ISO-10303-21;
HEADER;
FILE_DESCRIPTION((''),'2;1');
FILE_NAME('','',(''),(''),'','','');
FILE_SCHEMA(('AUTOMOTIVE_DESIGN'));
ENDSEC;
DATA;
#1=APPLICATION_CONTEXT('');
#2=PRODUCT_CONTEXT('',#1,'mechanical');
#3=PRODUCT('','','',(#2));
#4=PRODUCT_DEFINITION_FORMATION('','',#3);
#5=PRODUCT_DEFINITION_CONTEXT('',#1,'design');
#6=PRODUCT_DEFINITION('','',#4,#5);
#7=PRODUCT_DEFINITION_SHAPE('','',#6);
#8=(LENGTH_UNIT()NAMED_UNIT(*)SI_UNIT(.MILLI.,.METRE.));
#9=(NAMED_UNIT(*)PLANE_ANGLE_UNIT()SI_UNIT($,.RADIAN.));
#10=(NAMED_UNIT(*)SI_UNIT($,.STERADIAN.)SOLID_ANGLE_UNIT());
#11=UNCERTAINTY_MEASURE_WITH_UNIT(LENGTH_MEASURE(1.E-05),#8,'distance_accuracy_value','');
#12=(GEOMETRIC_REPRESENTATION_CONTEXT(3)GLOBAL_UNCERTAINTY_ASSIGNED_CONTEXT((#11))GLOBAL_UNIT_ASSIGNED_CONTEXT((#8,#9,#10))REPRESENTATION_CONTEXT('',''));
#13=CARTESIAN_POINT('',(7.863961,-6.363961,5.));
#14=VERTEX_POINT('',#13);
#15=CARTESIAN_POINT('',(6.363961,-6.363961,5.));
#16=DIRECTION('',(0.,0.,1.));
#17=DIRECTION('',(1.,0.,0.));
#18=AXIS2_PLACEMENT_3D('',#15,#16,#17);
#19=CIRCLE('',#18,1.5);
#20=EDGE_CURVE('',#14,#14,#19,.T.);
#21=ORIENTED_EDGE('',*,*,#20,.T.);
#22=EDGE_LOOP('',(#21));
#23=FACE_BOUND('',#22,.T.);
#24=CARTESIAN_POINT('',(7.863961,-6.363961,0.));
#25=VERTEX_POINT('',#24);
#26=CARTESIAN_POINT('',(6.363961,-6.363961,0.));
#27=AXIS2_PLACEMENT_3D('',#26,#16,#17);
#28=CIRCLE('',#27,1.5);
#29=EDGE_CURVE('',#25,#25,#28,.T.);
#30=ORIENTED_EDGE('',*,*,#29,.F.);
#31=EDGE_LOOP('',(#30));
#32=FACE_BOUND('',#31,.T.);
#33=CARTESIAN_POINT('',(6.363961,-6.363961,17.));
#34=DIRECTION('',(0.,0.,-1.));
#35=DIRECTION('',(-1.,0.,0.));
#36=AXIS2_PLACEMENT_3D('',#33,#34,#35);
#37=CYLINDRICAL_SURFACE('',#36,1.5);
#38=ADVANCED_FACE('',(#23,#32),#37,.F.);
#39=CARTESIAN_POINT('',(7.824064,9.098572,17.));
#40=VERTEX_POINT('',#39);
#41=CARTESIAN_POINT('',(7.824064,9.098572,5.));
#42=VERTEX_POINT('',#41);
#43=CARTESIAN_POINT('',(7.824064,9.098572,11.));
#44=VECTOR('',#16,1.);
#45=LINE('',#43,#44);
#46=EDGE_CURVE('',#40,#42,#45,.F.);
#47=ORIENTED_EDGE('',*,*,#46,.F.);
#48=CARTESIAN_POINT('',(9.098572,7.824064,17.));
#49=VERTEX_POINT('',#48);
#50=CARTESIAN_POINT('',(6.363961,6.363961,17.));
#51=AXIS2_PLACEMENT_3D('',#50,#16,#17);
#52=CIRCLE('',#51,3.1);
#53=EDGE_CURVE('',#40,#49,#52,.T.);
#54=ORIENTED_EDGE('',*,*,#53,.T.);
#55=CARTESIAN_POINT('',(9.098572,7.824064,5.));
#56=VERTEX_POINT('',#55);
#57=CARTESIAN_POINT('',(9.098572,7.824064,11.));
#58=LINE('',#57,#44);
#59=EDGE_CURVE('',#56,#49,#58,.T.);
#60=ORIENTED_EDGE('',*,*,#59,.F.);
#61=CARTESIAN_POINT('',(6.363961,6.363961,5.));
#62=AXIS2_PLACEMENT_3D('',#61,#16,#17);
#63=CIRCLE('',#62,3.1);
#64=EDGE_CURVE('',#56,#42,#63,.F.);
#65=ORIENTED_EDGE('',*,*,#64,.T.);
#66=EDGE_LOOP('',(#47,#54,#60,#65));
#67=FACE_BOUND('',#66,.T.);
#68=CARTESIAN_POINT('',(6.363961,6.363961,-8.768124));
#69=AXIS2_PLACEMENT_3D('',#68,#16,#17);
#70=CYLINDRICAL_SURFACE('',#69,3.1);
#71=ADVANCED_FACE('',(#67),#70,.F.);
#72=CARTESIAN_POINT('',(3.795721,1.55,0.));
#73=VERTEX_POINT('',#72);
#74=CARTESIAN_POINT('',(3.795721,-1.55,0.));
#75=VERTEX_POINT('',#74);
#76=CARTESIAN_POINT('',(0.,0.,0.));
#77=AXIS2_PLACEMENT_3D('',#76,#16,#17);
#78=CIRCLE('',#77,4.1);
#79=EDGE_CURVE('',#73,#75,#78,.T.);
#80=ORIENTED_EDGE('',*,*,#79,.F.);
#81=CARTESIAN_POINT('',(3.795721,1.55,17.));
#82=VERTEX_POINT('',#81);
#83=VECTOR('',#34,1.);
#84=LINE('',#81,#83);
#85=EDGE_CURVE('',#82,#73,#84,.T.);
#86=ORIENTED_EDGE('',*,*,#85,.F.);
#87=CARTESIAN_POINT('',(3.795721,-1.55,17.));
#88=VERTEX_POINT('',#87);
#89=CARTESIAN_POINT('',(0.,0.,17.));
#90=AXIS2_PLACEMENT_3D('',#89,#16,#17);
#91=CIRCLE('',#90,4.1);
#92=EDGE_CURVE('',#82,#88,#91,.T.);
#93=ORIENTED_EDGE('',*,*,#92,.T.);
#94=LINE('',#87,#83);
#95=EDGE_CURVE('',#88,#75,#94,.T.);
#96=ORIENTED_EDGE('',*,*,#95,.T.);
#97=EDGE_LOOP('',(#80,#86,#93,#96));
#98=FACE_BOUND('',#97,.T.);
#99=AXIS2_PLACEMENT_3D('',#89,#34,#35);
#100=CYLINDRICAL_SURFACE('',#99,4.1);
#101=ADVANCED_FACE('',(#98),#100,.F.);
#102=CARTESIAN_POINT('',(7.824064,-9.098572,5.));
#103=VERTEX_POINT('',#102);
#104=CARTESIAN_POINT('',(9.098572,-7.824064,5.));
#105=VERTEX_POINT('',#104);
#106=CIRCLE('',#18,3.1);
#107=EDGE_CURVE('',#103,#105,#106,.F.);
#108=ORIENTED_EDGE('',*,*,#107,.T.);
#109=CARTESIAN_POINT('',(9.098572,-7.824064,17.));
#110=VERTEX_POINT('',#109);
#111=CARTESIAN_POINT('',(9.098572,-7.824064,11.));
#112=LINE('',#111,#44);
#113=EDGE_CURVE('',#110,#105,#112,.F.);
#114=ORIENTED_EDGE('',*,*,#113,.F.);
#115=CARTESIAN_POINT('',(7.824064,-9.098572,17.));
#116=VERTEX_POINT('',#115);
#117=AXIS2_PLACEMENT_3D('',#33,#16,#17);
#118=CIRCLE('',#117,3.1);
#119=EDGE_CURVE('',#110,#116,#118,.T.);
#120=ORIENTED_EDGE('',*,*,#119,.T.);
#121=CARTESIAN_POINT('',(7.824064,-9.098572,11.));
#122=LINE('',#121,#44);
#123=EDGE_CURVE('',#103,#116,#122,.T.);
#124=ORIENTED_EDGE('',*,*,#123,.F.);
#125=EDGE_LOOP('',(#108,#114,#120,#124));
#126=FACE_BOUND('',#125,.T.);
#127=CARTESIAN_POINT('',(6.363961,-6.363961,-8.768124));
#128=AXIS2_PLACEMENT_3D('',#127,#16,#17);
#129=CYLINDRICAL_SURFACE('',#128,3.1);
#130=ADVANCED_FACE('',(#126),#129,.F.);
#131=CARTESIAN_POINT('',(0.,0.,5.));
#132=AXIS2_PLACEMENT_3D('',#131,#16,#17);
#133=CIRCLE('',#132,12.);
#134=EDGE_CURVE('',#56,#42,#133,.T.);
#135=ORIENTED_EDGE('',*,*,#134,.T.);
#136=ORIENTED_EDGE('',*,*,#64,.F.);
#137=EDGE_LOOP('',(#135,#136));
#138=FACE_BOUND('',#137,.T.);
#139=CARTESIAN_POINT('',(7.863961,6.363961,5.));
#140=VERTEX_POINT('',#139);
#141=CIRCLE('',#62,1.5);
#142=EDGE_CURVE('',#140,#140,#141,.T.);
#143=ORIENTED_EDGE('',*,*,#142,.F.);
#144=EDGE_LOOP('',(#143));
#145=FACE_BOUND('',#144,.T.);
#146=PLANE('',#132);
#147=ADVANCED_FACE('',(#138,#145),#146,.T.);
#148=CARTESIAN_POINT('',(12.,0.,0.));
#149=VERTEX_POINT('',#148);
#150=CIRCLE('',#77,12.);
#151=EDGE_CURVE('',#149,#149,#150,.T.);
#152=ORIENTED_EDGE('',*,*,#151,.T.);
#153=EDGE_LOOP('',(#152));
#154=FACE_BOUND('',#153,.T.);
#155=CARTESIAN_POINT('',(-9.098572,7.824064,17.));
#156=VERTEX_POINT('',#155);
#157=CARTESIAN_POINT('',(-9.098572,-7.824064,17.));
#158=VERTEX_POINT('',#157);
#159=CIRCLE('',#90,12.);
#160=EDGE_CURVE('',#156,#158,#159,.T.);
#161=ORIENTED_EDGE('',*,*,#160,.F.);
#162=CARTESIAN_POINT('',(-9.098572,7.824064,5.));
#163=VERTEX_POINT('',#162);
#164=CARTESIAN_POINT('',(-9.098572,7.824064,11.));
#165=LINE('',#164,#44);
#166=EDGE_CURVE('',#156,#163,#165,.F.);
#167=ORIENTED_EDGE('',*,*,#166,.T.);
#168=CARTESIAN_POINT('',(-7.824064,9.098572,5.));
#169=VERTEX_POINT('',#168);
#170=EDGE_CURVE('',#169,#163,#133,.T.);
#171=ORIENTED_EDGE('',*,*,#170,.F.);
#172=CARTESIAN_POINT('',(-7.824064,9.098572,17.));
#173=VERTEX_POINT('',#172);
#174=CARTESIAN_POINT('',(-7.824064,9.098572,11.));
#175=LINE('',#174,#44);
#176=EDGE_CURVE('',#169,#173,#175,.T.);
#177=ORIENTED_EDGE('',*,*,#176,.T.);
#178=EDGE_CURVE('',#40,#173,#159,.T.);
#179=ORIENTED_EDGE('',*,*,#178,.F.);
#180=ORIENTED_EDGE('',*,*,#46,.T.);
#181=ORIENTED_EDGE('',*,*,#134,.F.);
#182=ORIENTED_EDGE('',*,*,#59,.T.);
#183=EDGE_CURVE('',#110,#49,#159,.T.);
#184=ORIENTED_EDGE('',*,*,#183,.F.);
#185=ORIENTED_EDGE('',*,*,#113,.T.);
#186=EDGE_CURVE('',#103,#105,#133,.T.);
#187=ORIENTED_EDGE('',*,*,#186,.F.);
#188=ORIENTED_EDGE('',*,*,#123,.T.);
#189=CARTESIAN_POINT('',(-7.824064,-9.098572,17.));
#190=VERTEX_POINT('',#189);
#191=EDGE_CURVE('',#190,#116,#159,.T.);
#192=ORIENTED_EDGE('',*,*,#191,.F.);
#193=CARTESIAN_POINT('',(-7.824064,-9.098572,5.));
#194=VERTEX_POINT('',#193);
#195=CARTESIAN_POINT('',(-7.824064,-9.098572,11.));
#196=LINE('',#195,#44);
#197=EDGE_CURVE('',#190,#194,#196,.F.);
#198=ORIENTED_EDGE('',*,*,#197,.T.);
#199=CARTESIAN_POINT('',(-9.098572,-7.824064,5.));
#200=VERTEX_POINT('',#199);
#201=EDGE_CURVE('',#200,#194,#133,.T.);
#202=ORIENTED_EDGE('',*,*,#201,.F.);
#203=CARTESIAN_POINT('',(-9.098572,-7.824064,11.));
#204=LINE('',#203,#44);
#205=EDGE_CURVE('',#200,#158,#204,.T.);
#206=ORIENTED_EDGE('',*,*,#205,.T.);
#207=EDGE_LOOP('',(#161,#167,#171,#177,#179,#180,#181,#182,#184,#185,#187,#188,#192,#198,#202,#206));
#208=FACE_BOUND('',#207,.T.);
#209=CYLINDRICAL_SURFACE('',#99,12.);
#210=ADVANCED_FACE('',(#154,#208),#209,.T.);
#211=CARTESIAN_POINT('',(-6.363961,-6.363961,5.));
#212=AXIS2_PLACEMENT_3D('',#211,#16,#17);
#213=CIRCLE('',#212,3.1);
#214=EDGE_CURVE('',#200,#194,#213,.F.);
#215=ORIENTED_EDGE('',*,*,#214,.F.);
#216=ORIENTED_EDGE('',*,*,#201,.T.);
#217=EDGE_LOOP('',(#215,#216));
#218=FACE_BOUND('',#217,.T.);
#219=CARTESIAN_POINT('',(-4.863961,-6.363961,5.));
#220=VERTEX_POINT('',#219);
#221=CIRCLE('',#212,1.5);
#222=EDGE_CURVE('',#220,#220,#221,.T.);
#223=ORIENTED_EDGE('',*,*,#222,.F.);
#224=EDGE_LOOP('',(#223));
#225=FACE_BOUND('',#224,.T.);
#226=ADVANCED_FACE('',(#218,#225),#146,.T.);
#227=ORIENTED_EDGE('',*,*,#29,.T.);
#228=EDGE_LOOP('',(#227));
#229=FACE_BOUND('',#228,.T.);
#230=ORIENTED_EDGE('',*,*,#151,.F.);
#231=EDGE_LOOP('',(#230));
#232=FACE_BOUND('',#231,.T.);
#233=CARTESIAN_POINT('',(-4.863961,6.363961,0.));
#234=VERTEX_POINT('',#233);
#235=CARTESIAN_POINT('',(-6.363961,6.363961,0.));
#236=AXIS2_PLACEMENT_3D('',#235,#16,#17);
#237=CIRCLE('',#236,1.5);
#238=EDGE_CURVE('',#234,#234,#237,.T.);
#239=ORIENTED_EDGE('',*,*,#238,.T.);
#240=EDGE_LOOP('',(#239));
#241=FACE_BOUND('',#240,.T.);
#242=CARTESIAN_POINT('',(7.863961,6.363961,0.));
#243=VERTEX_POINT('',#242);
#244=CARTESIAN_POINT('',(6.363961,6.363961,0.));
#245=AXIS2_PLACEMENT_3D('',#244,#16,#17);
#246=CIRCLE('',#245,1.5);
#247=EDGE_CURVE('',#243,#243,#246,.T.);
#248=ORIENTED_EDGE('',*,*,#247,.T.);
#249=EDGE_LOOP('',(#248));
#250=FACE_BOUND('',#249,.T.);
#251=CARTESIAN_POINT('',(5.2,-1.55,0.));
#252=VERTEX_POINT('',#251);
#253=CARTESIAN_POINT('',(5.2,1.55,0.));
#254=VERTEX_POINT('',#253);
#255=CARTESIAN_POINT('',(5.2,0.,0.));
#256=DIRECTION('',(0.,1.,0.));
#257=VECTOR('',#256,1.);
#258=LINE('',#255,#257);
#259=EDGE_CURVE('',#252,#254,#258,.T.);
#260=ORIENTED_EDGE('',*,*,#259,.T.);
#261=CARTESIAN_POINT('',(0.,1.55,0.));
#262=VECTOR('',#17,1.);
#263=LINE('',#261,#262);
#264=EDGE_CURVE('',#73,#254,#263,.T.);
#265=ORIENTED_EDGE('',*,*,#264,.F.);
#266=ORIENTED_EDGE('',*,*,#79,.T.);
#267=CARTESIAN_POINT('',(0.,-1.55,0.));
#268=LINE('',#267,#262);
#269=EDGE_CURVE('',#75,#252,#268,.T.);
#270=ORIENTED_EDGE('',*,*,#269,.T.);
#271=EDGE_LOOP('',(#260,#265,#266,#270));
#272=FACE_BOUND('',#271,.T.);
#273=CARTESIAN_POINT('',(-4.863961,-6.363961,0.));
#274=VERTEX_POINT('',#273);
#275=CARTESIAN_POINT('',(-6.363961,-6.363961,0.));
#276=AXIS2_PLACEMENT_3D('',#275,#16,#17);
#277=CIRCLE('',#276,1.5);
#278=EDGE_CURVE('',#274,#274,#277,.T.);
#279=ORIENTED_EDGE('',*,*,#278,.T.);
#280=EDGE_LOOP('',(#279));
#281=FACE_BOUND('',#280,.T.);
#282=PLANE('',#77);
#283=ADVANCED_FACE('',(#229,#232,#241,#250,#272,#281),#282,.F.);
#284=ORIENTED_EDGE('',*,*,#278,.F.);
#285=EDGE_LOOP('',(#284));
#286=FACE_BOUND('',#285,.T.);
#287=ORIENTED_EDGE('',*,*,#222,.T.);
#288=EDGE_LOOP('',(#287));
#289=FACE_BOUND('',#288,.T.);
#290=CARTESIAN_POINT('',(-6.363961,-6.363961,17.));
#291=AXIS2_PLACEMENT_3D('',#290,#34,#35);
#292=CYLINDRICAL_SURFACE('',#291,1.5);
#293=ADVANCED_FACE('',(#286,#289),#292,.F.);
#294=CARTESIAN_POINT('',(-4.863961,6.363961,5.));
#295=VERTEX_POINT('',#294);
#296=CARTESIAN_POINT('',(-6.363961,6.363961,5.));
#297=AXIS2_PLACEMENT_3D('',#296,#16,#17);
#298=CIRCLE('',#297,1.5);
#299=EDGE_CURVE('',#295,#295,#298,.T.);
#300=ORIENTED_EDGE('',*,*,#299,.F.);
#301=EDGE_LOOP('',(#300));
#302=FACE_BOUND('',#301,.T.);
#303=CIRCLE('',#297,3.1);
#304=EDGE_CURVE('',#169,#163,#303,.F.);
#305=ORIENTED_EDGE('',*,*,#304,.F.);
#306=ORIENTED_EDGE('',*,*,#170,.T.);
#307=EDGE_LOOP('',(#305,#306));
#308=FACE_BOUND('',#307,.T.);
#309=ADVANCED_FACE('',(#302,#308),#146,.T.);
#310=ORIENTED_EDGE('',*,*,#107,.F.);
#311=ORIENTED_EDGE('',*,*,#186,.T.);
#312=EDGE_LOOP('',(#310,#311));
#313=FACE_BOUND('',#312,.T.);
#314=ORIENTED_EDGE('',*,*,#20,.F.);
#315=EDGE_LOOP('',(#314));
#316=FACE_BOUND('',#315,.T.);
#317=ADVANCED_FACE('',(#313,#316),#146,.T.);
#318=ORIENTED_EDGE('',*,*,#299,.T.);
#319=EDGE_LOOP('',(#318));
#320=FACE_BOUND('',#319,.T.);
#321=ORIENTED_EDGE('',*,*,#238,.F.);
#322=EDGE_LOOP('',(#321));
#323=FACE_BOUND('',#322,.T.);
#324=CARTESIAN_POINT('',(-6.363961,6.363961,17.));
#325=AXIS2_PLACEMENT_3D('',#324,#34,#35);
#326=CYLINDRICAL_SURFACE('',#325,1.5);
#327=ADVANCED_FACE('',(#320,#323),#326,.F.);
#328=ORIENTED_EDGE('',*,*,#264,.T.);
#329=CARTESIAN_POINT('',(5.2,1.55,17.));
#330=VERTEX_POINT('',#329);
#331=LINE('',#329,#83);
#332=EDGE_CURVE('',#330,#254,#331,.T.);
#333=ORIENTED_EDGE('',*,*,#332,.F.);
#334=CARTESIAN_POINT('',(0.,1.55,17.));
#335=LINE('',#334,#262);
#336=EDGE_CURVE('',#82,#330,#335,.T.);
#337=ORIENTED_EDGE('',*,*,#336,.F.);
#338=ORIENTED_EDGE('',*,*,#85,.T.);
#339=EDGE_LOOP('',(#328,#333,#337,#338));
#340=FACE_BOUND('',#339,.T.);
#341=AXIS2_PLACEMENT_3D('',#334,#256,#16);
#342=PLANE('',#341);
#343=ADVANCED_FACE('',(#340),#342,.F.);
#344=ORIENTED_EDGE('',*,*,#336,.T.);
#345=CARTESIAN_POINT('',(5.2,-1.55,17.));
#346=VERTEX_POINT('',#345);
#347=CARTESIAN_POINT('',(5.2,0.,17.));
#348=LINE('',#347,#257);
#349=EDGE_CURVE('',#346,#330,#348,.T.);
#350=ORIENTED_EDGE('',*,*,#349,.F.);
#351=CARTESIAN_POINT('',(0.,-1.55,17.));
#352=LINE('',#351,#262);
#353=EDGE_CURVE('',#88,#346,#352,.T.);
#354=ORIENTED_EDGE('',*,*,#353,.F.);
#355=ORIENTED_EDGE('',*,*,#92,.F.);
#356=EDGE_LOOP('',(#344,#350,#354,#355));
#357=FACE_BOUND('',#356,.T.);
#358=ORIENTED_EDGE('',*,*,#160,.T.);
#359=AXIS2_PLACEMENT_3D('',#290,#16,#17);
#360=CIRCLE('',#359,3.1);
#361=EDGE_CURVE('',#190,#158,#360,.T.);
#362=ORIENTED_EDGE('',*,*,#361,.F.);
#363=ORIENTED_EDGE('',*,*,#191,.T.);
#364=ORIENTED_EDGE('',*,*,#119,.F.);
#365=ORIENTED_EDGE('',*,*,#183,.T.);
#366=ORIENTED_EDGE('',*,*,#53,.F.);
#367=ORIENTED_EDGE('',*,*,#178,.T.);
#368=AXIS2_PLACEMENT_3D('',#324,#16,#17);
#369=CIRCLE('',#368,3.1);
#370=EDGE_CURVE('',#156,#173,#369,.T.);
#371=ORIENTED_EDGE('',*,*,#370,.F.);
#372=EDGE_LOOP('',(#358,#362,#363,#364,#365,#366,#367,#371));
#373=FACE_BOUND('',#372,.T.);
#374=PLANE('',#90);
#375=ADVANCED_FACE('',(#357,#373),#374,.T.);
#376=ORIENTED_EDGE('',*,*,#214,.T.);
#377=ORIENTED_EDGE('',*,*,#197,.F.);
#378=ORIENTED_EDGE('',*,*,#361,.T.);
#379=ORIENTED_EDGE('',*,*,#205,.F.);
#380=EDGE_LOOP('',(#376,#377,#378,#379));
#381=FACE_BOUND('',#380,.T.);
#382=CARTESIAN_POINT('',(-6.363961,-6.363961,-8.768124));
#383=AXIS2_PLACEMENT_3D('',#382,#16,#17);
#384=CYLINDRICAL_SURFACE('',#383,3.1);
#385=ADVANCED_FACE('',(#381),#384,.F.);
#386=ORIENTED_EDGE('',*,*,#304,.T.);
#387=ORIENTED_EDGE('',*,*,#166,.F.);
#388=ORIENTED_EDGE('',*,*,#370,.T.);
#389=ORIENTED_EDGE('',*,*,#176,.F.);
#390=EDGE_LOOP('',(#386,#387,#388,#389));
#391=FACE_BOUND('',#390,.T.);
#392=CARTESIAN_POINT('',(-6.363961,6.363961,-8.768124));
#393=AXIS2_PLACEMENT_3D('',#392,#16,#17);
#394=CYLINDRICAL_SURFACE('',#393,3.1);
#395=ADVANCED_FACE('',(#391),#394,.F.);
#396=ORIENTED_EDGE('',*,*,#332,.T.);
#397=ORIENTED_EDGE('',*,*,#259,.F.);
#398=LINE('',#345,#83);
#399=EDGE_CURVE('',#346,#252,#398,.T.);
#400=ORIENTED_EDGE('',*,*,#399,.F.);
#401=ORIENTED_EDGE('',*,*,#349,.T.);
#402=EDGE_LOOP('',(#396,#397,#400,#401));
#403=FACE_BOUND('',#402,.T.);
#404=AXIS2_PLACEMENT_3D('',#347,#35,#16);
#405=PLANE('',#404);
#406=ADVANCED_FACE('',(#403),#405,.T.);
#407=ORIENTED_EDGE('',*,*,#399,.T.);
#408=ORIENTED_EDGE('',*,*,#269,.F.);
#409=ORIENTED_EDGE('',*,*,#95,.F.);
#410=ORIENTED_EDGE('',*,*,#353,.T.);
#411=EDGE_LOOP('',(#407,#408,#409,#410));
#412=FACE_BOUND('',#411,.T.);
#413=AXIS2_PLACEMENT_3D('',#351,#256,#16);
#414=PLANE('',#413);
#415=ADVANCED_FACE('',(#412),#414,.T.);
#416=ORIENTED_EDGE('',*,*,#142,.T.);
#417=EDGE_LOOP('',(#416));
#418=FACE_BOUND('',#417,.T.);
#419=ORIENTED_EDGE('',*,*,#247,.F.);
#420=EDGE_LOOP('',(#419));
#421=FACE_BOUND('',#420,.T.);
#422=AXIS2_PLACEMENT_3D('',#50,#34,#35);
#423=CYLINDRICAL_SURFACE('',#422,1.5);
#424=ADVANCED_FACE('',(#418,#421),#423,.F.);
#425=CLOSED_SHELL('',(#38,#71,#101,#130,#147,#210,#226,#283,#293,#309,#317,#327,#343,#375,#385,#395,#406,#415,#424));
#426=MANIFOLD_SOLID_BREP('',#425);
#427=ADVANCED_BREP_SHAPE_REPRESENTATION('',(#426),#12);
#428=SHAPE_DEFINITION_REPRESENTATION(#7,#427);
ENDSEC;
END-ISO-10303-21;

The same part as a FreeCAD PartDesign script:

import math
import FreeCAD as App
import Part
import Sketcher
Q = App.Units.Quantity

doc = App.newDocument("Part")
body = doc.addObject("PartDesign::Body", "Body")

# Sketch on XY plane
sketch1 = body.newObject("Sketcher::SketchObject", "Sketch")
sketch1.AttachmentSupport = (doc.getObject("XY_Plane"), [""])
sketch1.MapMode = "FlatFace"
sketch1.addGeometry([
    Part.Circle(App.Vector(0, 0, 0), App.Vector(0, 0, 1), 12),  # 0
    Part.Circle(App.Vector(-6.4, -6.4, 0), App.Vector(0, 0, 1), 1.5),  # 1
    Part.Circle(App.Vector(6.4, -6.4, 0), App.Vector(0, 0, 1), 1.5),  # 2
    Part.Circle(App.Vector(-6.4, 6.4, 0), App.Vector(0, 0, 1), 1.5),  # 3
    Part.LineSegment(App.Vector(5.2, -1.6, 0), App.Vector(3.8, -1.6, 0)),  # 4
    Part.ArcOfCircle(Part.Circle(App.Vector(0, 0, 0), App.Vector(0, 0, 1), 4.1), math.radians(22), math.radians(338)),  # 5
    Part.LineSegment(App.Vector(3.8, 1.6, 0), App.Vector(5.2, 1.6, 0)),  # 6
    Part.LineSegment(App.Vector(5.2, 1.6, 0), App.Vector(5.2, -1.6, 0)),  # 7
    Part.Circle(App.Vector(6.4, 6.4, 0), App.Vector(0, 0, 1), 1.5),  # 8
], False)
sketch1.addConstraint([
    Sketcher.Constraint("Coincident", 4, 2, 5, 2),
    Sketcher.Constraint("Coincident", 5, 1, 6, 1),
    Sketcher.Constraint("Coincident", 6, 2, 7, 1),
    Sketcher.Constraint("Coincident", 7, 2, 4, 1),
    Sketcher.Constraint("Horizontal", 4),
    Sketcher.Constraint("Horizontal", 6),
    Sketcher.Constraint("Vertical", 7),
    Sketcher.Constraint("Coincident", 0, 3, -1, 1),
    Sketcher.Constraint("Coincident", 5, 3, -1, 1),
    Sketcher.Constraint("Equal", 1, 2),
    Sketcher.Constraint("Equal", 2, 3),
    Sketcher.Constraint("Equal", 3, 8),
    Sketcher.Constraint("Symmetric", 2, 3, 3, 3, -1, 1),
    Sketcher.Constraint("Symmetric", 1, 3, 8, 3, -1, 1),
    Sketcher.Constraint("Symmetric", 1, 3, 2, 3, -2),
    Sketcher.Constraint("Vertical", 4, 2, 5, 1),
    Sketcher.Constraint("Diameter", 0, Q("24 mm")),
    Sketcher.Constraint("Diameter", 1, Q("3 mm")),
    Sketcher.Constraint("Radius", 5, Q("4.1 mm")),
    Sketcher.Constraint("DistanceY", 7, 2, 7, 1, Q("3.1 mm")),
    Sketcher.Constraint("DistanceX", -1, 1, 6, 2, Q("5.2 mm")),
    Sketcher.Constraint("DistanceX", 1, 3, -1, 1, Q("6.363961 mm")),
    Sketcher.Constraint("DistanceY", 1, 3, -1, 1, Q("6.363961 mm")),
])
pad1 = body.newObject("PartDesign::Pad", "Pad")
pad1.Profile = sketch1
pad1.Length = 17

# Sketch on XY plane
sketch2 = body.newObject("Sketcher::SketchObject", "Sketch001")
sketch2.AttachmentSupport = (doc.getObject("XY_Plane"), [""])
sketch2.MapMode = "FlatFace"
sketch2.AttachmentOffset = App.Placement(App.Vector(0, 0, 17), App.Rotation())
sketch2.addGeometry([
    Part.Circle(App.Vector(-6.4, 6.4, 0), App.Vector(0, 0, 1), 3.1),
    Part.Circle(App.Vector(6.4, 6.4, 0), App.Vector(0, 0, 1), 3.1),
    Part.Circle(App.Vector(6.4, -6.4, 0), App.Vector(0, 0, 1), 3.1),
    Part.Circle(App.Vector(-6.4, -6.4, 0), App.Vector(0, 0, 1), 3.1),
], False)
sketch2.addConstraint([
    Sketcher.Constraint("Equal", 0, 1),
    Sketcher.Constraint("Equal", 1, 2),
    Sketcher.Constraint("Equal", 2, 3),
    Sketcher.Constraint("Symmetric", 0, 3, 2, 3, -1, 1),
    Sketcher.Constraint("Symmetric", 1, 3, 3, 3, -1, 1),
    Sketcher.Constraint("Symmetric", 0, 3, 1, 3, -2),
    Sketcher.Constraint("Diameter", 0, Q("6.2 mm")),
    Sketcher.Constraint("DistanceX", 0, 3, -1, 1, Q("6.363961 mm")),
    Sketcher.Constraint("DistanceY", -1, 1, 0, 3, Q("6.363961 mm")),
])
pocket1 = body.newObject("PartDesign::Pocket", "Pocket")
pocket1.Profile = sketch2
pocket1.Length = 12

doc.recompute()
